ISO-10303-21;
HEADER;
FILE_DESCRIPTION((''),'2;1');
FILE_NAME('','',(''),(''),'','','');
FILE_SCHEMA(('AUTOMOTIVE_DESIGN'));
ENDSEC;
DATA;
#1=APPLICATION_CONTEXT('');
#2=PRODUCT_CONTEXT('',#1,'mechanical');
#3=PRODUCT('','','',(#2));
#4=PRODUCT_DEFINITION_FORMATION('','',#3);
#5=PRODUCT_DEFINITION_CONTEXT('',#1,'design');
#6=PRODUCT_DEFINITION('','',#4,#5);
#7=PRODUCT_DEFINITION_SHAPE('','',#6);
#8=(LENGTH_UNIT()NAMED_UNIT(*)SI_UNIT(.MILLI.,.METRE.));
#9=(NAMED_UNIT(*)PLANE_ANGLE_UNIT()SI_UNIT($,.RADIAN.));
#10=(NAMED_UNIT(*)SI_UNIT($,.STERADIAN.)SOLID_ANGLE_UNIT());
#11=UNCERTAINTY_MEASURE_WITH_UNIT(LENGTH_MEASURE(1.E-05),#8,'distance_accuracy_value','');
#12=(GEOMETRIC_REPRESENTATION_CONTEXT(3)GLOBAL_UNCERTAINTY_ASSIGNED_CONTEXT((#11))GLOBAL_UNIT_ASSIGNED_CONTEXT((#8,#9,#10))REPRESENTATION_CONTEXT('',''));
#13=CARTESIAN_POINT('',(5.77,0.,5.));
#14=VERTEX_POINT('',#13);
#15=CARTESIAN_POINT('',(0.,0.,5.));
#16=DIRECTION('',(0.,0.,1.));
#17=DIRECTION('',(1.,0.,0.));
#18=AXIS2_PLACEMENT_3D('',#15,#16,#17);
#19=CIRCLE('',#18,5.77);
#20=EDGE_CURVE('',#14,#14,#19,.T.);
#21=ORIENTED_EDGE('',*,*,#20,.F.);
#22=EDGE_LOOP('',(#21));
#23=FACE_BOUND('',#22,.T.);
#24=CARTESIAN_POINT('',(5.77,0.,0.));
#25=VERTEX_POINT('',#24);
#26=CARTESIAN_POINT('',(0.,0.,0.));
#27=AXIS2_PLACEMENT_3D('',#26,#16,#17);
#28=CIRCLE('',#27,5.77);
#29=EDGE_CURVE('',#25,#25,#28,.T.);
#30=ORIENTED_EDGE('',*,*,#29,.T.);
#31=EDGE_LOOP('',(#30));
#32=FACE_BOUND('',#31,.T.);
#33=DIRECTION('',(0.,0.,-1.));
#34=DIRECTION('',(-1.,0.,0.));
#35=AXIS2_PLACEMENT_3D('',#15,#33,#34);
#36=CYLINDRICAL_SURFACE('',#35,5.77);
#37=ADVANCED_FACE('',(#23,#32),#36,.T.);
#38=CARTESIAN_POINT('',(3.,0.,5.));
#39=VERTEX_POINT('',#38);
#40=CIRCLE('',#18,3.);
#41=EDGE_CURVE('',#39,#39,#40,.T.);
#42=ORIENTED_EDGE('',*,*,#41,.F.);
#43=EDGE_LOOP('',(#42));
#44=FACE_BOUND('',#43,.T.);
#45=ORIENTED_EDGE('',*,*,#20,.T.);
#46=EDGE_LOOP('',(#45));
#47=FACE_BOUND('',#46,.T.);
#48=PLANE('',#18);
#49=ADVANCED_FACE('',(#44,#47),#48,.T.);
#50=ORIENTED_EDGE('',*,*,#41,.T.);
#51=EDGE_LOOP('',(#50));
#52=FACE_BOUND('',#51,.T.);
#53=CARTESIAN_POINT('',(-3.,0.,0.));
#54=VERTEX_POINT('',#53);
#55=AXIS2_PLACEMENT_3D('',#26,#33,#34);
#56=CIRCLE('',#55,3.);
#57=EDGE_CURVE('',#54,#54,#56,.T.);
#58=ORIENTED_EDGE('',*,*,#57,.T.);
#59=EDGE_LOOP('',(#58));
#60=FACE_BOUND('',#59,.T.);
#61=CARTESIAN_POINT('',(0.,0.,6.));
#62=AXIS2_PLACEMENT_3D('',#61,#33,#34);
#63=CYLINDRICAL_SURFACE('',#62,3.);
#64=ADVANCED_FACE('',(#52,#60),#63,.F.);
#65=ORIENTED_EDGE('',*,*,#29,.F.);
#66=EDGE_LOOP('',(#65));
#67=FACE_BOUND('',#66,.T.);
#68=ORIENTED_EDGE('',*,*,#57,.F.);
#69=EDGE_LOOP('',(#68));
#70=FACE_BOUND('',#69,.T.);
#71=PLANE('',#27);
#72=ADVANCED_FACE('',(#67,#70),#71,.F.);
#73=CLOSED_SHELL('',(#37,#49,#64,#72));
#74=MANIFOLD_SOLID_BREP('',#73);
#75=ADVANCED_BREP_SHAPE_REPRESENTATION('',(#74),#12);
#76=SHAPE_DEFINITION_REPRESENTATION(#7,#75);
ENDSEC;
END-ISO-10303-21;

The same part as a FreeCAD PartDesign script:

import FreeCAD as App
import Part
import Sketcher
from FreeCAD import Vector
Q = App.Units.Quantity

doc = App.newDocument("Part")
body = doc.addObject("PartDesign::Body", "Body")

# Sketch on XY plane
sketch1 = doc.addObject("Sketcher::SketchObject", "Sketch")
body.addObject(sketch1)
sketch1.AttachmentSupport = (doc.XY_Plane, [""])
sketch1.MapMode = "FlatFace"
sketch1.addGeometry(Part.Circle(Vector(0, 0, 0), Vector(0, 0, 1), 5.77), False)
sketch1.addConstraint([
    Sketcher.Constraint("Coincident", 0, 3, -1, 1),
    Sketcher.Constraint("Diameter", 0, Q("11.54 mm")),
])
pad1 = doc.addObject("PartDesign::Pad", "Pad")
body.addObject(pad1)
pad1.Profile = sketch1
pad1.Length = 5

# Sketch on XY plane
sketch2 = doc.addObject("Sketcher::SketchObject", "Sketch001")
body.addObject(sketch2)
sketch2.AttachmentSupport = (doc.XY_Plane, [""])
sketch2.MapMode = "FlatFace"
sketch2.addGeometry(Part.Circle(Vector(0, 0, 0), Vector(0, 0, 1), 3), False)
sketch2.addConstraint([
    Sketcher.Constraint("Coincident", 0, 3, -1, 1),
    Sketcher.Constraint("Diameter", 0, Q("6 mm")),
])
pocket1 = doc.addObject("PartDesign::Pocket", "Pocket")
body.addObject(pocket1)
pocket1.Profile = sketch2
pocket1.Length = 6
pocket1.Reversed = True

doc.recompute()
